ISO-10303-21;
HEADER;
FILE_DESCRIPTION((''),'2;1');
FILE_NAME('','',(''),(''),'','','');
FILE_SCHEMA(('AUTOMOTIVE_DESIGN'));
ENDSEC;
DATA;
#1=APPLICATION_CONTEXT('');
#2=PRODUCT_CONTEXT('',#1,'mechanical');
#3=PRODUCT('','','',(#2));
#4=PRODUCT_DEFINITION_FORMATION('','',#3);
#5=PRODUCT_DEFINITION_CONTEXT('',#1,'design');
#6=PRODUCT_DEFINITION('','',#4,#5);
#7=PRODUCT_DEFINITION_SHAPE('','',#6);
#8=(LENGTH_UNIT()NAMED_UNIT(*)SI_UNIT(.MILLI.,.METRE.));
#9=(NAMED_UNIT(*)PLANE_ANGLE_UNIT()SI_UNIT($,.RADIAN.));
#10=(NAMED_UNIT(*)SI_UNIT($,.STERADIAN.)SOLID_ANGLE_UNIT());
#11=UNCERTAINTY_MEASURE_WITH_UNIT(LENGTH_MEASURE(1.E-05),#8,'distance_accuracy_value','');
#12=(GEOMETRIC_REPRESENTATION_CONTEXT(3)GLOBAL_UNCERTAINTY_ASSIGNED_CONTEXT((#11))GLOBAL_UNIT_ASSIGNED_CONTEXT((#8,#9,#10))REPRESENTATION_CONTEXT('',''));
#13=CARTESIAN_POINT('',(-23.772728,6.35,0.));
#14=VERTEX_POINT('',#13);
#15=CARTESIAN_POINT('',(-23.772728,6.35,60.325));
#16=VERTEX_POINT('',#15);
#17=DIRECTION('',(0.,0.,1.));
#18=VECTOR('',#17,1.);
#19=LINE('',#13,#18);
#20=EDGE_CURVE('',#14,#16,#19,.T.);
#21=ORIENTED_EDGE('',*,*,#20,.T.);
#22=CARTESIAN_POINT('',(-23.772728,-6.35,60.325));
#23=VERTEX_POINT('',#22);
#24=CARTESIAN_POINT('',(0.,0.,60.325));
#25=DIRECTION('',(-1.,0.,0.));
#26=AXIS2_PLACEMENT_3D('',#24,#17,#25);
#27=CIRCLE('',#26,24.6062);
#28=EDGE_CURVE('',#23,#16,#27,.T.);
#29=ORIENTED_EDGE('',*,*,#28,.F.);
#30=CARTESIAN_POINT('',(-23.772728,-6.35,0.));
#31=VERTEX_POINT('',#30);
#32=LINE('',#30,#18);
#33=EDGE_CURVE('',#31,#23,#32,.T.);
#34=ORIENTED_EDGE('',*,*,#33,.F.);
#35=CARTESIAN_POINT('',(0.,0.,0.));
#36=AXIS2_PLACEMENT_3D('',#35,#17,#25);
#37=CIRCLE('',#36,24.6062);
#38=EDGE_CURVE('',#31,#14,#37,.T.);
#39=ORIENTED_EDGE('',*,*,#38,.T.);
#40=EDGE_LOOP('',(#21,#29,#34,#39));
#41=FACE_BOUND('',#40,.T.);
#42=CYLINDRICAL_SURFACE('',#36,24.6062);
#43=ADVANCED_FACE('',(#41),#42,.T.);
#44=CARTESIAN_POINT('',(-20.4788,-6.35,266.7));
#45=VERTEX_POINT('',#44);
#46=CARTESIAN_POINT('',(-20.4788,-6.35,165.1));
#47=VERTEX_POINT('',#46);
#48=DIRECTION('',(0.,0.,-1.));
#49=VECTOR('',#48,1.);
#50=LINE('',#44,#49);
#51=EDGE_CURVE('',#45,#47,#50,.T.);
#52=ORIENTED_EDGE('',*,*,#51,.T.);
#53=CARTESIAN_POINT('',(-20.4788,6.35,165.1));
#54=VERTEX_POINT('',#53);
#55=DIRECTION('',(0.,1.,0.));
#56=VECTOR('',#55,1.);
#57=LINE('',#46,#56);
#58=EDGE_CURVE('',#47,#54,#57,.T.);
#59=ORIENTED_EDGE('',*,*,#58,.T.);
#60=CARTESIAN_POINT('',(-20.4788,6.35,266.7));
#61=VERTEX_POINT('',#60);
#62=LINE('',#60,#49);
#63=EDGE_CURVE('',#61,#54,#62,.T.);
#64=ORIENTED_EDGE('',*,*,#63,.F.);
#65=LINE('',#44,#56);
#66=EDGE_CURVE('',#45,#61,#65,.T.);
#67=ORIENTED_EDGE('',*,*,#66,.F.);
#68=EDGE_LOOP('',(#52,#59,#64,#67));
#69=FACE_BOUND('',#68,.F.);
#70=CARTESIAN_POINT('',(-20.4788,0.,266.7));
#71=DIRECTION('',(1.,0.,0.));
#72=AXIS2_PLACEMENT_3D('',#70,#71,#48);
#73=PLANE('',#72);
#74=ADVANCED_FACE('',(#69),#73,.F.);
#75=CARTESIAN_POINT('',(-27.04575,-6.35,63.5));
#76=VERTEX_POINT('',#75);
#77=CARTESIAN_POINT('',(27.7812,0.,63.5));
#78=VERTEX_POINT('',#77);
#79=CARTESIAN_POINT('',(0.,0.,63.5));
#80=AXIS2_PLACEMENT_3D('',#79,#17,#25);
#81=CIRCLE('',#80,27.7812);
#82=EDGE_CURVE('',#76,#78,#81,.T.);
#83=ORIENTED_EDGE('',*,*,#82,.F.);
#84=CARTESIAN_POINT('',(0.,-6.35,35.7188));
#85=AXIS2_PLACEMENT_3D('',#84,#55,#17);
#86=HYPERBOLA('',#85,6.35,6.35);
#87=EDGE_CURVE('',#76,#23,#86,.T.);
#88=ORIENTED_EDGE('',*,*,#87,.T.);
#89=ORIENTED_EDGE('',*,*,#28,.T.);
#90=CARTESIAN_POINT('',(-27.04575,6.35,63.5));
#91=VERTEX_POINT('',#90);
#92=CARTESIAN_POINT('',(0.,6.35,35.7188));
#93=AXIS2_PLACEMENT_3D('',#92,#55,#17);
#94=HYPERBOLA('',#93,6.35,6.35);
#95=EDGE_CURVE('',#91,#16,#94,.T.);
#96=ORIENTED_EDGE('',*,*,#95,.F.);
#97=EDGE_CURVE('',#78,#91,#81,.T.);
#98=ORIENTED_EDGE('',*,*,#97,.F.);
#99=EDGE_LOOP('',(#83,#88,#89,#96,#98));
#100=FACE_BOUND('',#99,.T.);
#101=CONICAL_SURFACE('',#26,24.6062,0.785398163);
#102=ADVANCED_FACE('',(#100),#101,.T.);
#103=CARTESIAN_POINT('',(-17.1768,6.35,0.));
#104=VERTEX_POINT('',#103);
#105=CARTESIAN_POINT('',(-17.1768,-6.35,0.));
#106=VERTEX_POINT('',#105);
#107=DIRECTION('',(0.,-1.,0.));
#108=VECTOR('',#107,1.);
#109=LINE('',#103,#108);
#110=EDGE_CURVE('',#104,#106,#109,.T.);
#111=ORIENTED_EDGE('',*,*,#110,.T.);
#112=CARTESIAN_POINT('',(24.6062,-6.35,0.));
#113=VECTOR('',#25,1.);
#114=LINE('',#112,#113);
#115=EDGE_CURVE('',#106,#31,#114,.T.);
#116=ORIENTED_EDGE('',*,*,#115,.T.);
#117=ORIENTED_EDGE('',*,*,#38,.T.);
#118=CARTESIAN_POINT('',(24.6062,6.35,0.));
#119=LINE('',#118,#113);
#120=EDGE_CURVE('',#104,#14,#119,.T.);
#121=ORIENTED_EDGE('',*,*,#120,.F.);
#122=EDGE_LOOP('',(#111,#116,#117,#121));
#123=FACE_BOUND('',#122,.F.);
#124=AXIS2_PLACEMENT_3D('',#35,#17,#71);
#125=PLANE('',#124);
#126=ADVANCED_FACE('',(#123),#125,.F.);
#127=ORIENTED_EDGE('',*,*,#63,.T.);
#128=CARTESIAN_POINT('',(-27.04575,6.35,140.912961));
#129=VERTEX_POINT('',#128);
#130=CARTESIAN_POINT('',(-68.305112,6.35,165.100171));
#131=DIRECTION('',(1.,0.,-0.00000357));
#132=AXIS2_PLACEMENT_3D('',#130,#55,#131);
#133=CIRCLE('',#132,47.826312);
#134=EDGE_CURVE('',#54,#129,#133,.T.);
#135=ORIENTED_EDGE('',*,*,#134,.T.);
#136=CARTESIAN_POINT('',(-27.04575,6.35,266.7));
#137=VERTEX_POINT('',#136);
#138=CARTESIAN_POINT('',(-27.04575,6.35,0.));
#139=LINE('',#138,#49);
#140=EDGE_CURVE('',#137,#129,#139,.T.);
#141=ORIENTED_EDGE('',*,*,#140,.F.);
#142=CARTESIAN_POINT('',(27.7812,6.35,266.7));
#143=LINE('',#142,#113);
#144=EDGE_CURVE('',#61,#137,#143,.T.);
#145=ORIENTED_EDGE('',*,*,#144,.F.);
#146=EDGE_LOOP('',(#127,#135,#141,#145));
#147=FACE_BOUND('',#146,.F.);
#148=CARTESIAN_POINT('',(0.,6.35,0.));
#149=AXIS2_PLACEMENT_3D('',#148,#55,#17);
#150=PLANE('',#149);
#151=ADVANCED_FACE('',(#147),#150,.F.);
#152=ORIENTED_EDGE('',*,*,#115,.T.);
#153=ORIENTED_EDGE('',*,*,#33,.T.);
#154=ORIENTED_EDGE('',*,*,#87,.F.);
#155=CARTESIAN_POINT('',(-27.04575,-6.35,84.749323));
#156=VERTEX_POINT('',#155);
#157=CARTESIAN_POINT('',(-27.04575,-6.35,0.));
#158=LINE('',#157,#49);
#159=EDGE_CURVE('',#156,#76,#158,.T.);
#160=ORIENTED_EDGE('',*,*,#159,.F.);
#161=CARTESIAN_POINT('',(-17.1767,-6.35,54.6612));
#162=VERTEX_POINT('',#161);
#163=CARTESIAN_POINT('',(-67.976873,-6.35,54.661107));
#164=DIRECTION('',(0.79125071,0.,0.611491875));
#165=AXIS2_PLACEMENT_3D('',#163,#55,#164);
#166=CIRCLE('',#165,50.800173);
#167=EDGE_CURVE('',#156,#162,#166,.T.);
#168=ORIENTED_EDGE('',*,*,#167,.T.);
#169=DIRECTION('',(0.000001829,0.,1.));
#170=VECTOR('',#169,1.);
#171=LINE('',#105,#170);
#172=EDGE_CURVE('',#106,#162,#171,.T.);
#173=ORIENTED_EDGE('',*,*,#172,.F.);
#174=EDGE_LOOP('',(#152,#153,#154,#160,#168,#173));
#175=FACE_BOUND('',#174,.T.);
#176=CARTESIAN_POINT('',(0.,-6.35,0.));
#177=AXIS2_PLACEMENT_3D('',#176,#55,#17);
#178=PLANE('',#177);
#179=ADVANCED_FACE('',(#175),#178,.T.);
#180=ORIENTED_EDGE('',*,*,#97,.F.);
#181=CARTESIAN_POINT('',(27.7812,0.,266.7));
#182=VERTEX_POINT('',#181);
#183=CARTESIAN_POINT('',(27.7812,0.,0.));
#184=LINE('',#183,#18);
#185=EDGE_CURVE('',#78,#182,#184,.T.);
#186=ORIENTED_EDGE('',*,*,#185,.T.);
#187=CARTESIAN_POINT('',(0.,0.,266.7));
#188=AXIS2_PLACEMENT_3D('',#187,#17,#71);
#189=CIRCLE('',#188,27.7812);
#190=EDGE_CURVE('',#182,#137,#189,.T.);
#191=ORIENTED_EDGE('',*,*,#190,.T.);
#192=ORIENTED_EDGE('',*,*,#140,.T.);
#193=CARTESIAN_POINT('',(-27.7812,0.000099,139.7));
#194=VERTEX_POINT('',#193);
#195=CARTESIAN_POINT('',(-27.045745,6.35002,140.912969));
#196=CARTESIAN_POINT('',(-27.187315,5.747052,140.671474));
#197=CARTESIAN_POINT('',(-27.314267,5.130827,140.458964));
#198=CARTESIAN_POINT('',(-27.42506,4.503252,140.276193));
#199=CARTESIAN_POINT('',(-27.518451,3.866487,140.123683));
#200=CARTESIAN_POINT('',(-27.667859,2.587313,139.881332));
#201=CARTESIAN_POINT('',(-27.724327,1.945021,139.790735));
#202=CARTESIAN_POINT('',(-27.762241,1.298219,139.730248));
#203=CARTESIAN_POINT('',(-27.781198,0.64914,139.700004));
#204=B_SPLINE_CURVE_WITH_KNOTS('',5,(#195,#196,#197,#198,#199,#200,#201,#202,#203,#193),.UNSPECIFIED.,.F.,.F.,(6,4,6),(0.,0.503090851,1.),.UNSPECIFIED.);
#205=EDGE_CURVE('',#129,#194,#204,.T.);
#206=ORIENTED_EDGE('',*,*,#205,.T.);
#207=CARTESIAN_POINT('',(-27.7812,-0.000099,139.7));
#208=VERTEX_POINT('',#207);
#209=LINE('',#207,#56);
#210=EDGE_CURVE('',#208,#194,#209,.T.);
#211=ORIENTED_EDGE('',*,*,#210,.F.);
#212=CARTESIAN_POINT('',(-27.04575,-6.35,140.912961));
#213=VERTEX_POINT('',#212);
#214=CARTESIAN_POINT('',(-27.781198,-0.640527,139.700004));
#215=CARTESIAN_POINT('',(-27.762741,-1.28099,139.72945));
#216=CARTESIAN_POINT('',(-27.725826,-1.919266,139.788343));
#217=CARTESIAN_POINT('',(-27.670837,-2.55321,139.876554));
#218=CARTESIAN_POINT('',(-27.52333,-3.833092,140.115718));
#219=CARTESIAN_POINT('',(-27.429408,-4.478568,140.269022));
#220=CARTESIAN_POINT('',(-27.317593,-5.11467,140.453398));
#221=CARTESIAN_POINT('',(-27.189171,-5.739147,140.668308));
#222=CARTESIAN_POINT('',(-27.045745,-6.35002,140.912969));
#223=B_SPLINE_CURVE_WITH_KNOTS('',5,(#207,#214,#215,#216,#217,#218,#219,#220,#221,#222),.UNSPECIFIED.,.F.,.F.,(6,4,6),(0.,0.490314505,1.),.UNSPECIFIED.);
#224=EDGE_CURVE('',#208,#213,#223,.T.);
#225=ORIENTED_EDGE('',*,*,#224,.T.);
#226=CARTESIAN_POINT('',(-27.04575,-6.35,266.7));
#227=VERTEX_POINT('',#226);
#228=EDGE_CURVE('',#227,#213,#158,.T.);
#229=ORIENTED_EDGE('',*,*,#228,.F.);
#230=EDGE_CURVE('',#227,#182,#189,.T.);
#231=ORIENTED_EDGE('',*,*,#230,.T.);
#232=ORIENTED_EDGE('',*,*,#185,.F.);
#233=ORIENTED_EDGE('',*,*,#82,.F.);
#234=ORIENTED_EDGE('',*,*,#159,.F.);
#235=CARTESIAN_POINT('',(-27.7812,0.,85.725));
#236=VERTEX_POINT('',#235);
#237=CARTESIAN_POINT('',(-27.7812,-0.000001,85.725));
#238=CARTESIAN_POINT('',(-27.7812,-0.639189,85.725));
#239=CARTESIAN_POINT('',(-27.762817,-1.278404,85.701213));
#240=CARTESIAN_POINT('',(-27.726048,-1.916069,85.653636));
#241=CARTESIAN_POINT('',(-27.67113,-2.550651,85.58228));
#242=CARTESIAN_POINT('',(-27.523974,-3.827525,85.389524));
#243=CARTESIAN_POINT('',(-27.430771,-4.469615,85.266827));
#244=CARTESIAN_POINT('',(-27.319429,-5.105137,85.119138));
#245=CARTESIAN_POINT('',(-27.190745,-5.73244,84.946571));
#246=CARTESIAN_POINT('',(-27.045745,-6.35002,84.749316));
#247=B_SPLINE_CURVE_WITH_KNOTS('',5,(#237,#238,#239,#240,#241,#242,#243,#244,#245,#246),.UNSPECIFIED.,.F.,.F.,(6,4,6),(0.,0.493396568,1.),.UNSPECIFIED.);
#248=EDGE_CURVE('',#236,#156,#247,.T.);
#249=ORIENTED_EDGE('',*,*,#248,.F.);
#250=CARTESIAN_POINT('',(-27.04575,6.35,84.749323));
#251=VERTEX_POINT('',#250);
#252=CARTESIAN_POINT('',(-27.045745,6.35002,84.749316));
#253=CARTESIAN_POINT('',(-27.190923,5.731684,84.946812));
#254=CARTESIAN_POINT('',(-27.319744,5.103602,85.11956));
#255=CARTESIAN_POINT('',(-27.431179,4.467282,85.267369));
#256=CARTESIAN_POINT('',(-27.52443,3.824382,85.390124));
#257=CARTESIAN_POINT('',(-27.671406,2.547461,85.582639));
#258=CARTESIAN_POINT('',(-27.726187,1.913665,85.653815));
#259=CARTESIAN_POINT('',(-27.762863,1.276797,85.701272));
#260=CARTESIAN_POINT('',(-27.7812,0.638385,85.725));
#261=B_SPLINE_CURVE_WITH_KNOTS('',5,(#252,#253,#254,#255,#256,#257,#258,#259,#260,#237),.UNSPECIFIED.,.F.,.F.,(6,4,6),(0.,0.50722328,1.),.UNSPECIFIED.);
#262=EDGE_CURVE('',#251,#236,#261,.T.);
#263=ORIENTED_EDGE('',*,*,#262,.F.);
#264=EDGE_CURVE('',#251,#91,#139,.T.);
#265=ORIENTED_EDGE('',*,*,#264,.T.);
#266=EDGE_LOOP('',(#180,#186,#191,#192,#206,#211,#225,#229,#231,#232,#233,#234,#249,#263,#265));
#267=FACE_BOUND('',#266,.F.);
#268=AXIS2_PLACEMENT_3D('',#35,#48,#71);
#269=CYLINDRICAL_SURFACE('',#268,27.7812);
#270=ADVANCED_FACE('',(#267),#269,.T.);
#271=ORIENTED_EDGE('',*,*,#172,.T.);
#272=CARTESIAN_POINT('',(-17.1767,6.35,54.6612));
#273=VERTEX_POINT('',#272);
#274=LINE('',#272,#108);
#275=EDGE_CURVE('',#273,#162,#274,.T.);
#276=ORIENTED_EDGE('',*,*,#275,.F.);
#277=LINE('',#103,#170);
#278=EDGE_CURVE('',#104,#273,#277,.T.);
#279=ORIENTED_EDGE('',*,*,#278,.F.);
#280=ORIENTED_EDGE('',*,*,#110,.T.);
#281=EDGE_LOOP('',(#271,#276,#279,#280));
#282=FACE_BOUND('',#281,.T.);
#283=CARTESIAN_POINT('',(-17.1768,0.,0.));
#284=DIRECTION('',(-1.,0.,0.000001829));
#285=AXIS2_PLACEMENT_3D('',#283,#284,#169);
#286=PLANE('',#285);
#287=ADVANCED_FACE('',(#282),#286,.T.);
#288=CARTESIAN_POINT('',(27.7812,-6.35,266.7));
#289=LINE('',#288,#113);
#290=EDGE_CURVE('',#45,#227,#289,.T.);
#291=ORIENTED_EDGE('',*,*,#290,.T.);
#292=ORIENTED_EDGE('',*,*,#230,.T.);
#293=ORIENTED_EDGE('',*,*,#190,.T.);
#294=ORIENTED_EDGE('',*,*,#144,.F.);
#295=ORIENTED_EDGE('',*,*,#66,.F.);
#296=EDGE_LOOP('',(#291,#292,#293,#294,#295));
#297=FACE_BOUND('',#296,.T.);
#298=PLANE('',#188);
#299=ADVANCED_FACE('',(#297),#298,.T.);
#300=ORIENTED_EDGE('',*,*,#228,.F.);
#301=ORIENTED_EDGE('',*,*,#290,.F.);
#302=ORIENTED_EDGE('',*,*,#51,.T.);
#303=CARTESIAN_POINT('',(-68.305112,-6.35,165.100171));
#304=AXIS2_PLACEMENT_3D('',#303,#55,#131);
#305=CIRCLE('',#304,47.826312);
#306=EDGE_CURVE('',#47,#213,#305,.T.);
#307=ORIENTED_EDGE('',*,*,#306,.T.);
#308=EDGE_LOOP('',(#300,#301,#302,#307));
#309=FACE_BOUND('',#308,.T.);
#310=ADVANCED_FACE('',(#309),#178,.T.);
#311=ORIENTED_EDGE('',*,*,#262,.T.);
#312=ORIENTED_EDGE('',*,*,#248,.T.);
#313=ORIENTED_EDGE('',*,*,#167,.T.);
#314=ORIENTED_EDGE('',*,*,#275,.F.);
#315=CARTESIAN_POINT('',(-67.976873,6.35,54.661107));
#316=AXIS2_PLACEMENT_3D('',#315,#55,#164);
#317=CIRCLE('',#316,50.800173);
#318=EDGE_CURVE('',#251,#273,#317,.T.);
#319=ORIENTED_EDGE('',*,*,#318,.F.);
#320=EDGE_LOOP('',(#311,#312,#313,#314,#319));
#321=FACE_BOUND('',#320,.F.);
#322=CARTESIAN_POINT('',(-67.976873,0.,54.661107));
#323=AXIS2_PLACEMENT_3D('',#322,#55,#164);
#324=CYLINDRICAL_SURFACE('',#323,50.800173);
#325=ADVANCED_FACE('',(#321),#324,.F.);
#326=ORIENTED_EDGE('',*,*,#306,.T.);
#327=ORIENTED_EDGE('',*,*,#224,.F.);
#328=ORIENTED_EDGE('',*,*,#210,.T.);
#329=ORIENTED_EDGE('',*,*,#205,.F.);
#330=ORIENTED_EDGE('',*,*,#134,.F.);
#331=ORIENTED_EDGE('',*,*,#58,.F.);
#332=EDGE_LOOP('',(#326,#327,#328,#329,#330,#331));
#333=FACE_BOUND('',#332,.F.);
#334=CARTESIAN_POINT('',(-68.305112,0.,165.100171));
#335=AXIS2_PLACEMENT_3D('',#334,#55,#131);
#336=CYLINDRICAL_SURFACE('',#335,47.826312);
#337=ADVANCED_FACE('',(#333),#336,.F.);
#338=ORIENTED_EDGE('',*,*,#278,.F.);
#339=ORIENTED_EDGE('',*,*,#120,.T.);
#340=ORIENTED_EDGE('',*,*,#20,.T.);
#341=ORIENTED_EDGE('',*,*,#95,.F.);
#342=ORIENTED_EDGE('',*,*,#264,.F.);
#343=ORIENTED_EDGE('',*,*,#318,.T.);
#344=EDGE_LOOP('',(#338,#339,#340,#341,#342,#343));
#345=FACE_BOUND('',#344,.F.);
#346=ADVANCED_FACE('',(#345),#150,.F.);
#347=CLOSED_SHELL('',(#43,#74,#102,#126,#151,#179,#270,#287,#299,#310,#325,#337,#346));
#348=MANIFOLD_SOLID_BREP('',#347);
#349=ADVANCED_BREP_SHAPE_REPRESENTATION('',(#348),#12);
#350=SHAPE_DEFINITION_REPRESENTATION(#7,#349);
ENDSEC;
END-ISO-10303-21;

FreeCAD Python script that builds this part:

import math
import FreeCAD as App
import Part
import Sketcher
from FreeCAD import Vector
Q = App.Units.Quantity

doc = App.newDocument("Part")
params = doc.addObject("Spreadsheet::Sheet", "Params")
for row, (alias, value) in enumerate([
    ("sketch1_diameter", "2.1875 in"),
    ("pad1_length", "10.5 in"),
    ("sketch2_height", "2.375 in"),
    ("sketch2_height2", "2.5 in"),
    ("groove_angle", "360 deg"),
    ("sketch3_radius", "2 in"),
    ("pocket1_length", "0.5 in"),
    ("sketch4_height", "4 in"),
    ("sketch4_height2", "5 in"),
    ("pocket2_length", "0.5 in"),
], start=1):
    params.set(f"A{row}", alias)
    params.set(f"B{row}", "=" + value)
    params.setAlias(f"B{row}", alias)

body = doc.addObject("PartDesign::Body", "Body")

# Sketch on XY plane
sketch1 = body.newObject("Sketcher::SketchObject", "Sketch")
sketch1.AttachmentSupport = (doc.getObject("XY_Plane"), [""])
sketch1.MapMode = "FlatFace"
sketch1.addGeometry(Part.Circle(Vector(0, 0, 0), Vector(0, 0, 1), 28), False)
sketch1.addConstraint(Sketcher.Constraint("Coincident", 0, 3, -1, 1))
sketch1.addConstraint(Sketcher.Constraint("Diameter", 0, Q("2.1875 in")))
sketch1.setExpression("Constraints[1]", "Params.sketch1_diameter")
pad1 = body.newObject("PartDesign::Pad", "Pad")
pad1.Profile = sketch1
pad1.setExpression("Length", "Params.pad1_length")

# Sketch on XZ plane
sketch2 = body.newObject("Sketcher::SketchObject", "Sketch001")
sketch2.AttachmentSupport = (doc.getObject("XZ_Plane"), [""])
sketch2.MapMode = "FlatFace"
sketch2.addGeometry(Part.LineSegment(Vector(-24.6, 60.3, 0), Vector(-24.6, 0, 0)), False)
sketch2.addGeometry(Part.LineSegment(Vector(-24.6, 0, 0), Vector(-27.8, 0, 0)), False)
sketch2.addGeometry(Part.LineSegment(Vector(-27.8, 0, 0), Vector(-27.8, 63.5, 0)), False)
sketch2.addGeometry(Part.LineSegment(Vector(-27.8, 63.5, 0), Vector(-24.6, 60.3, 0)), False)
sketch2.addConstraint(Sketcher.Constraint("Coincident", 0, 2, 1, 1))
sketch2.addConstraint(Sketcher.Constraint("Coincident", 1, 2, 2, 1))
sketch2.addConstraint(Sketcher.Constraint("Coincident", 2, 2, 3, 1))
sketch2.addConstraint(Sketcher.Constraint("Coincident", 3, 2, 0, 1))
sketch2.addConstraint(Sketcher.Constraint("Vertical", 0))
sketch2.addConstraint(Sketcher.Constraint("Horizontal", 1))
sketch2.addConstraint(Sketcher.Constraint("Vertical", 2))
sketch2.addConstraint(Sketcher.Constraint("PointOnObject", 0, 2, -1))
sketch2.addConstraint(Sketcher.Constraint("DistanceY", 0, 2, 0, 1, Q("2.375 in")))
sketch2.addConstraint(Sketcher.Constraint("DistanceY", 2, 1, 2, 2, Q("2.5 in")))
sketch2.addConstraint(Sketcher.Constraint("DistanceX", 0, 2, -1, 1, Q("0.968748 in")))
sketch2.addConstraint(Sketcher.Constraint("Angle", 3, Q("-45 deg")))
sketch2.setExpression("Constraints[8]", "Params.sketch2_height")
sketch2.setExpression("Constraints[9]", "Params.sketch2_height2")
groove = body.newObject("PartDesign::Groove", "Groove")
groove.Profile = sketch2
groove.ReferenceAxis = (sketch2, ["V_Axis"])
groove.setExpression("Angle", "Params.groove_angle")

# Sketch on XZ plane
sketch3 = body.newObject("Sketcher::SketchObject", "Sketch002")
sketch3.AttachmentSupport = (doc.getObject("XZ_Plane"), [""])
sketch3.MapMode = "FlatFace"
sketch3.addGeometry(Part.LineSegment(Vector(-24.6, 0, 0), Vector(-24.6, 60.3, 0)), False)
sketch3.addGeometry(Part.LineSegment(Vector(-24.6, 60.3, 0), Vector(-27.8, 63.5, 0)), False)
sketch3.addGeometry(Part.LineSegment(Vector(-27.8, 63.5, 0), Vector(-27.8, 85.7, 0)), False)
sketch3.addGeometry(Part.ArcOfCircle(Part.Circle(Vector(-68, 54.7, 0), Vector(0, 0, 1), 50.8), math.radians(0), math.radians(38)), False)
sketch3.addGeometry(Part.LineSegment(Vector(-17.2, 54.7, 0), Vector(-17.2, 0, 0)), False)
sketch3.addGeometry(Part.LineSegment(Vector(-17.2, 0, 0), Vector(-24.6, 0, 0)), False)
sketch3.addConstraint(Sketcher.Constraint("Coincident", 0, 2, 1, 1))
sketch3.addConstraint(Sketcher.Constraint("Coincident", 1, 2, 2, 1))
sketch3.addConstraint(Sketcher.Constraint("Coincident", 2, 2, 3, 2))
sketch3.addConstraint(Sketcher.Constraint("Tangent", 3, 1, 4, 1))
sketch3.addConstraint(Sketcher.Constraint("Coincident", 4, 2, 5, 1))
sketch3.addConstraint(Sketcher.Constraint("Coincident", 5, 2, 0, 1))
sketch3.addConstraint(Sketcher.Constraint("Vertical", 0))
sketch3.addConstraint(Sketcher.Constraint("Vertical", 2))
sketch3.addConstraint(Sketcher.Constraint("Vertical", 4))
sketch3.addConstraint(Sketcher.Constraint("Horizontal", 5))
sketch3.addConstraint(Sketcher.Constraint("PointOnObject", 4, 2, -1))
sketch3.addConstraint(Sketcher.Constraint("Radius", 3, Q("2 in")))
sketch3.addConstraint(Sketcher.Constraint("DistanceY", -1, 1, 2, 2, Q("3.375 in")))
sketch3.addConstraint(Sketcher.Constraint("Angle", 1, Q("135 deg")))
sketch3.addConstraint(Sketcher.Constraint("DistanceY", 0, 2, 2, 2, Q("1 in")))
sketch3.addConstraint(Sketcher.Constraint("DistanceY", -1, 1, 1, 2, Q("2.5 in")))
sketch3.addConstraint(Sketcher.Constraint("DistanceX", 5, 2, 5, 1, Q("0.2925 in")))
sketch3.addConstraint(Sketcher.Constraint("DistanceX", 0, 2, -1, 1, Q("0.968748 in")))
sketch3.setExpression("Constraints[11]", "Params.sketch3_radius")
pocket1 = body.newObject("PartDesign::Pocket", "Pocket")
pocket1.Profile = sketch3
pocket1.setExpression("Length", "Params.pocket1_length")
pocket1.Midplane = True

# Sketch on XZ plane
sketch4 = body.newObject("Sketcher::SketchObject", "Sketch003")
sketch4.AttachmentSupport = (doc.getObject("XZ_Plane"), [""])
sketch4.MapMode = "FlatFace"
sketch4.addGeometry(Part.LineSegment(Vector(-28, 267, 0), Vector(-20, 267, 0)), False)
sketch4.addGeometry(Part.LineSegment(Vector(-20, 267, 0), Vector(-20, 165, 0)), False)
sketch4.addGeometry(Part.ArcOfCircle(Part.Circle(Vector(-68, 165, 0), Vector(0, 0, 1), 48), math.radians(-32), math.radians(0)), False)
sketch4.addGeometry(Part.LineSegment(Vector(-28, 140, 0), Vector(-28, 267, 0)), False)
sketch4.addConstraint(Sketcher.Constraint("Coincident", 0, 2, 1, 1))
sketch4.addConstraint(Sketcher.Constraint("Tangent", 1, 2, 2, 2))
sketch4.addConstraint(Sketcher.Constraint("Coincident", 2, 1, 3, 1))
sketch4.addConstraint(Sketcher.Constraint("Coincident", 3, 2, 0, 1))
sketch4.addConstraint(Sketcher.Constraint("Horizontal", 0))
sketch4.addConstraint(Sketcher.Constraint("Vertical", 1))
sketch4.addConstraint(Sketcher.Constraint("Vertical", 3))
sketch4.addConstraint(Sketcher.Constraint("DistanceY", 1, 2, 1, 1, Q("4 in")))
sketch4.addConstraint(Sketcher.Constraint("DistanceY", 3, 1, 3, 2, Q("5 in")))
sketch4.addConstraint(Sketcher.Constraint("DistanceY", -1, 1, 2, 3, Q("6.5 in")))
sketch4.addConstraint(Sketcher.Constraint("Radius", 2, Q("47.8263 mm")))
sketch4.addConstraint(Sketcher.Constraint("DistanceX", 2, 1, -1, 1, Q("1.093748 in")))
sketch4.setExpression("Constraints[7]", "Params.sketch4_height")
sketch4.setExpression("Constraints[8]", "Params.sketch4_height2")
pocket2 = body.newObject("PartDesign::Pocket", "Pocket001")
pocket2.Profile = sketch4
pocket2.setExpression("Length", "Params.pocket2_length")
pocket2.Midplane = True

doc.recompute()
